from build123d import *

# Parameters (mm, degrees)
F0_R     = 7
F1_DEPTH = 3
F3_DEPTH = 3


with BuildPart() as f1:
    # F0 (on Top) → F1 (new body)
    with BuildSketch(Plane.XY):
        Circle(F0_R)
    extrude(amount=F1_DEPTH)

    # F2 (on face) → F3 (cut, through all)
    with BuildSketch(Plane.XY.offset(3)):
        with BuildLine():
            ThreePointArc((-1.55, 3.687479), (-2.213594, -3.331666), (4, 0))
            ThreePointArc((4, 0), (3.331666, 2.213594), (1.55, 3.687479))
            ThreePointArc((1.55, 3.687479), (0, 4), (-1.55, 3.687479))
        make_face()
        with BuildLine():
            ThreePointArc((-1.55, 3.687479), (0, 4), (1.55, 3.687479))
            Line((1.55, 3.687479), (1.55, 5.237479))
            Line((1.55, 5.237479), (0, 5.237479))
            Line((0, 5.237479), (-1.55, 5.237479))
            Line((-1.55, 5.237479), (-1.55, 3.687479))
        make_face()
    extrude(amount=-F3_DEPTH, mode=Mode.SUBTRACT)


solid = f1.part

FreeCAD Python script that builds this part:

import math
import FreeCAD as App
import Part
import Sketcher
from FreeCAD import Vector

doc = App.newDocument("Part")
body = doc.addObject("PartDesign::Body", "Body")

sketch1 = body.newObject("Sketcher::SketchObject", "Sketch")
sketch1.AttachmentSupport = (doc.getObject("XY_Plane"), [""])
sketch1.MapMode = "FlatFace"
sketch1.addGeometry(Part.Circle(Vector(0, 0, 0), Vector(0, 0, 1), 7), False)
sketch1.addConstraint([
    Sketcher.Constraint("Coincident", 0, 3, -1, 1),
    Sketcher.Constraint("Diameter", 0, 14.0),
])
pad1 = body.newObject("PartDesign::Pad", "Pad")
pad1.Profile = sketch1
pad1.Length = 3

sketch2 = body.newObject("Sketcher::SketchObject", "Sketch001")
sketch2.AttachmentSupport = (doc.getObject("XY_Plane"), [""])
sketch2.MapMode = "FlatFace"
sketch2.AttachmentOffset = App.Placement(Vector(0, 0, 3), App.Rotation())
sketch2.addGeometry([
    Part.ArcOfCircle(Part.Circle(Vector(0, 0, 0), Vector(0, 0, 1), 4), math.radians(113), math.radians(360)),
    Part.ArcOfCircle(Part.Circle(Vector(0, 0, 0), Vector(0, 0, 1), 4), math.radians(0), math.radians(67)),
    Part.LineSegment(Vector(1.6, 3.7, 0), Vector(1.6, 5.2, 0)),
    Part.LineSegment(Vector(1.6, 5.2, 0), Vector(-1.6, 5.2, 0)),
    Part.LineSegment(Vector(-1.6, 5.2, 0), Vector(-1.6, 3.7, 0)),
], False)
sketch2.addConstraint([
    Sketcher.Constraint("Tangent", 0, 2, 1, 1),
    Sketcher.Constraint("Coincident", 1, 2, 2, 1),
    Sketcher.Constraint("Coincident", 2, 2, 3, 1),
    Sketcher.Constraint("Coincident", 3, 2, 4, 1),
    Sketcher.Constraint("Coincident", 4, 2, 0, 1),
    Sketcher.Constraint("Vertical", 2),
    Sketcher.Constraint("Horizontal", 3),
    Sketcher.Constraint("Vertical", 4),
    Sketcher.Constraint("Coincident", 0, 3, -1, 1),
    Sketcher.Constraint("Symmetric", 1, 2, 4, 2, -2),
    Sketcher.Constraint("PointOnObject", 0, 2, -1),
    Sketcher.Constraint("Radius", 0, 4.0),
    Sketcher.Constraint("DistanceX", 3, 2, 3, 1, 3.1),
    Sketcher.Constraint("DistanceY", 2, 1, 2, 2, 1.55),
])
pocket1 = body.newObject("PartDesign::Pocket", "Pocket")
pocket1.Profile = sketch2
pocket1.Type = "ThroughAll"

doc.recompute()
